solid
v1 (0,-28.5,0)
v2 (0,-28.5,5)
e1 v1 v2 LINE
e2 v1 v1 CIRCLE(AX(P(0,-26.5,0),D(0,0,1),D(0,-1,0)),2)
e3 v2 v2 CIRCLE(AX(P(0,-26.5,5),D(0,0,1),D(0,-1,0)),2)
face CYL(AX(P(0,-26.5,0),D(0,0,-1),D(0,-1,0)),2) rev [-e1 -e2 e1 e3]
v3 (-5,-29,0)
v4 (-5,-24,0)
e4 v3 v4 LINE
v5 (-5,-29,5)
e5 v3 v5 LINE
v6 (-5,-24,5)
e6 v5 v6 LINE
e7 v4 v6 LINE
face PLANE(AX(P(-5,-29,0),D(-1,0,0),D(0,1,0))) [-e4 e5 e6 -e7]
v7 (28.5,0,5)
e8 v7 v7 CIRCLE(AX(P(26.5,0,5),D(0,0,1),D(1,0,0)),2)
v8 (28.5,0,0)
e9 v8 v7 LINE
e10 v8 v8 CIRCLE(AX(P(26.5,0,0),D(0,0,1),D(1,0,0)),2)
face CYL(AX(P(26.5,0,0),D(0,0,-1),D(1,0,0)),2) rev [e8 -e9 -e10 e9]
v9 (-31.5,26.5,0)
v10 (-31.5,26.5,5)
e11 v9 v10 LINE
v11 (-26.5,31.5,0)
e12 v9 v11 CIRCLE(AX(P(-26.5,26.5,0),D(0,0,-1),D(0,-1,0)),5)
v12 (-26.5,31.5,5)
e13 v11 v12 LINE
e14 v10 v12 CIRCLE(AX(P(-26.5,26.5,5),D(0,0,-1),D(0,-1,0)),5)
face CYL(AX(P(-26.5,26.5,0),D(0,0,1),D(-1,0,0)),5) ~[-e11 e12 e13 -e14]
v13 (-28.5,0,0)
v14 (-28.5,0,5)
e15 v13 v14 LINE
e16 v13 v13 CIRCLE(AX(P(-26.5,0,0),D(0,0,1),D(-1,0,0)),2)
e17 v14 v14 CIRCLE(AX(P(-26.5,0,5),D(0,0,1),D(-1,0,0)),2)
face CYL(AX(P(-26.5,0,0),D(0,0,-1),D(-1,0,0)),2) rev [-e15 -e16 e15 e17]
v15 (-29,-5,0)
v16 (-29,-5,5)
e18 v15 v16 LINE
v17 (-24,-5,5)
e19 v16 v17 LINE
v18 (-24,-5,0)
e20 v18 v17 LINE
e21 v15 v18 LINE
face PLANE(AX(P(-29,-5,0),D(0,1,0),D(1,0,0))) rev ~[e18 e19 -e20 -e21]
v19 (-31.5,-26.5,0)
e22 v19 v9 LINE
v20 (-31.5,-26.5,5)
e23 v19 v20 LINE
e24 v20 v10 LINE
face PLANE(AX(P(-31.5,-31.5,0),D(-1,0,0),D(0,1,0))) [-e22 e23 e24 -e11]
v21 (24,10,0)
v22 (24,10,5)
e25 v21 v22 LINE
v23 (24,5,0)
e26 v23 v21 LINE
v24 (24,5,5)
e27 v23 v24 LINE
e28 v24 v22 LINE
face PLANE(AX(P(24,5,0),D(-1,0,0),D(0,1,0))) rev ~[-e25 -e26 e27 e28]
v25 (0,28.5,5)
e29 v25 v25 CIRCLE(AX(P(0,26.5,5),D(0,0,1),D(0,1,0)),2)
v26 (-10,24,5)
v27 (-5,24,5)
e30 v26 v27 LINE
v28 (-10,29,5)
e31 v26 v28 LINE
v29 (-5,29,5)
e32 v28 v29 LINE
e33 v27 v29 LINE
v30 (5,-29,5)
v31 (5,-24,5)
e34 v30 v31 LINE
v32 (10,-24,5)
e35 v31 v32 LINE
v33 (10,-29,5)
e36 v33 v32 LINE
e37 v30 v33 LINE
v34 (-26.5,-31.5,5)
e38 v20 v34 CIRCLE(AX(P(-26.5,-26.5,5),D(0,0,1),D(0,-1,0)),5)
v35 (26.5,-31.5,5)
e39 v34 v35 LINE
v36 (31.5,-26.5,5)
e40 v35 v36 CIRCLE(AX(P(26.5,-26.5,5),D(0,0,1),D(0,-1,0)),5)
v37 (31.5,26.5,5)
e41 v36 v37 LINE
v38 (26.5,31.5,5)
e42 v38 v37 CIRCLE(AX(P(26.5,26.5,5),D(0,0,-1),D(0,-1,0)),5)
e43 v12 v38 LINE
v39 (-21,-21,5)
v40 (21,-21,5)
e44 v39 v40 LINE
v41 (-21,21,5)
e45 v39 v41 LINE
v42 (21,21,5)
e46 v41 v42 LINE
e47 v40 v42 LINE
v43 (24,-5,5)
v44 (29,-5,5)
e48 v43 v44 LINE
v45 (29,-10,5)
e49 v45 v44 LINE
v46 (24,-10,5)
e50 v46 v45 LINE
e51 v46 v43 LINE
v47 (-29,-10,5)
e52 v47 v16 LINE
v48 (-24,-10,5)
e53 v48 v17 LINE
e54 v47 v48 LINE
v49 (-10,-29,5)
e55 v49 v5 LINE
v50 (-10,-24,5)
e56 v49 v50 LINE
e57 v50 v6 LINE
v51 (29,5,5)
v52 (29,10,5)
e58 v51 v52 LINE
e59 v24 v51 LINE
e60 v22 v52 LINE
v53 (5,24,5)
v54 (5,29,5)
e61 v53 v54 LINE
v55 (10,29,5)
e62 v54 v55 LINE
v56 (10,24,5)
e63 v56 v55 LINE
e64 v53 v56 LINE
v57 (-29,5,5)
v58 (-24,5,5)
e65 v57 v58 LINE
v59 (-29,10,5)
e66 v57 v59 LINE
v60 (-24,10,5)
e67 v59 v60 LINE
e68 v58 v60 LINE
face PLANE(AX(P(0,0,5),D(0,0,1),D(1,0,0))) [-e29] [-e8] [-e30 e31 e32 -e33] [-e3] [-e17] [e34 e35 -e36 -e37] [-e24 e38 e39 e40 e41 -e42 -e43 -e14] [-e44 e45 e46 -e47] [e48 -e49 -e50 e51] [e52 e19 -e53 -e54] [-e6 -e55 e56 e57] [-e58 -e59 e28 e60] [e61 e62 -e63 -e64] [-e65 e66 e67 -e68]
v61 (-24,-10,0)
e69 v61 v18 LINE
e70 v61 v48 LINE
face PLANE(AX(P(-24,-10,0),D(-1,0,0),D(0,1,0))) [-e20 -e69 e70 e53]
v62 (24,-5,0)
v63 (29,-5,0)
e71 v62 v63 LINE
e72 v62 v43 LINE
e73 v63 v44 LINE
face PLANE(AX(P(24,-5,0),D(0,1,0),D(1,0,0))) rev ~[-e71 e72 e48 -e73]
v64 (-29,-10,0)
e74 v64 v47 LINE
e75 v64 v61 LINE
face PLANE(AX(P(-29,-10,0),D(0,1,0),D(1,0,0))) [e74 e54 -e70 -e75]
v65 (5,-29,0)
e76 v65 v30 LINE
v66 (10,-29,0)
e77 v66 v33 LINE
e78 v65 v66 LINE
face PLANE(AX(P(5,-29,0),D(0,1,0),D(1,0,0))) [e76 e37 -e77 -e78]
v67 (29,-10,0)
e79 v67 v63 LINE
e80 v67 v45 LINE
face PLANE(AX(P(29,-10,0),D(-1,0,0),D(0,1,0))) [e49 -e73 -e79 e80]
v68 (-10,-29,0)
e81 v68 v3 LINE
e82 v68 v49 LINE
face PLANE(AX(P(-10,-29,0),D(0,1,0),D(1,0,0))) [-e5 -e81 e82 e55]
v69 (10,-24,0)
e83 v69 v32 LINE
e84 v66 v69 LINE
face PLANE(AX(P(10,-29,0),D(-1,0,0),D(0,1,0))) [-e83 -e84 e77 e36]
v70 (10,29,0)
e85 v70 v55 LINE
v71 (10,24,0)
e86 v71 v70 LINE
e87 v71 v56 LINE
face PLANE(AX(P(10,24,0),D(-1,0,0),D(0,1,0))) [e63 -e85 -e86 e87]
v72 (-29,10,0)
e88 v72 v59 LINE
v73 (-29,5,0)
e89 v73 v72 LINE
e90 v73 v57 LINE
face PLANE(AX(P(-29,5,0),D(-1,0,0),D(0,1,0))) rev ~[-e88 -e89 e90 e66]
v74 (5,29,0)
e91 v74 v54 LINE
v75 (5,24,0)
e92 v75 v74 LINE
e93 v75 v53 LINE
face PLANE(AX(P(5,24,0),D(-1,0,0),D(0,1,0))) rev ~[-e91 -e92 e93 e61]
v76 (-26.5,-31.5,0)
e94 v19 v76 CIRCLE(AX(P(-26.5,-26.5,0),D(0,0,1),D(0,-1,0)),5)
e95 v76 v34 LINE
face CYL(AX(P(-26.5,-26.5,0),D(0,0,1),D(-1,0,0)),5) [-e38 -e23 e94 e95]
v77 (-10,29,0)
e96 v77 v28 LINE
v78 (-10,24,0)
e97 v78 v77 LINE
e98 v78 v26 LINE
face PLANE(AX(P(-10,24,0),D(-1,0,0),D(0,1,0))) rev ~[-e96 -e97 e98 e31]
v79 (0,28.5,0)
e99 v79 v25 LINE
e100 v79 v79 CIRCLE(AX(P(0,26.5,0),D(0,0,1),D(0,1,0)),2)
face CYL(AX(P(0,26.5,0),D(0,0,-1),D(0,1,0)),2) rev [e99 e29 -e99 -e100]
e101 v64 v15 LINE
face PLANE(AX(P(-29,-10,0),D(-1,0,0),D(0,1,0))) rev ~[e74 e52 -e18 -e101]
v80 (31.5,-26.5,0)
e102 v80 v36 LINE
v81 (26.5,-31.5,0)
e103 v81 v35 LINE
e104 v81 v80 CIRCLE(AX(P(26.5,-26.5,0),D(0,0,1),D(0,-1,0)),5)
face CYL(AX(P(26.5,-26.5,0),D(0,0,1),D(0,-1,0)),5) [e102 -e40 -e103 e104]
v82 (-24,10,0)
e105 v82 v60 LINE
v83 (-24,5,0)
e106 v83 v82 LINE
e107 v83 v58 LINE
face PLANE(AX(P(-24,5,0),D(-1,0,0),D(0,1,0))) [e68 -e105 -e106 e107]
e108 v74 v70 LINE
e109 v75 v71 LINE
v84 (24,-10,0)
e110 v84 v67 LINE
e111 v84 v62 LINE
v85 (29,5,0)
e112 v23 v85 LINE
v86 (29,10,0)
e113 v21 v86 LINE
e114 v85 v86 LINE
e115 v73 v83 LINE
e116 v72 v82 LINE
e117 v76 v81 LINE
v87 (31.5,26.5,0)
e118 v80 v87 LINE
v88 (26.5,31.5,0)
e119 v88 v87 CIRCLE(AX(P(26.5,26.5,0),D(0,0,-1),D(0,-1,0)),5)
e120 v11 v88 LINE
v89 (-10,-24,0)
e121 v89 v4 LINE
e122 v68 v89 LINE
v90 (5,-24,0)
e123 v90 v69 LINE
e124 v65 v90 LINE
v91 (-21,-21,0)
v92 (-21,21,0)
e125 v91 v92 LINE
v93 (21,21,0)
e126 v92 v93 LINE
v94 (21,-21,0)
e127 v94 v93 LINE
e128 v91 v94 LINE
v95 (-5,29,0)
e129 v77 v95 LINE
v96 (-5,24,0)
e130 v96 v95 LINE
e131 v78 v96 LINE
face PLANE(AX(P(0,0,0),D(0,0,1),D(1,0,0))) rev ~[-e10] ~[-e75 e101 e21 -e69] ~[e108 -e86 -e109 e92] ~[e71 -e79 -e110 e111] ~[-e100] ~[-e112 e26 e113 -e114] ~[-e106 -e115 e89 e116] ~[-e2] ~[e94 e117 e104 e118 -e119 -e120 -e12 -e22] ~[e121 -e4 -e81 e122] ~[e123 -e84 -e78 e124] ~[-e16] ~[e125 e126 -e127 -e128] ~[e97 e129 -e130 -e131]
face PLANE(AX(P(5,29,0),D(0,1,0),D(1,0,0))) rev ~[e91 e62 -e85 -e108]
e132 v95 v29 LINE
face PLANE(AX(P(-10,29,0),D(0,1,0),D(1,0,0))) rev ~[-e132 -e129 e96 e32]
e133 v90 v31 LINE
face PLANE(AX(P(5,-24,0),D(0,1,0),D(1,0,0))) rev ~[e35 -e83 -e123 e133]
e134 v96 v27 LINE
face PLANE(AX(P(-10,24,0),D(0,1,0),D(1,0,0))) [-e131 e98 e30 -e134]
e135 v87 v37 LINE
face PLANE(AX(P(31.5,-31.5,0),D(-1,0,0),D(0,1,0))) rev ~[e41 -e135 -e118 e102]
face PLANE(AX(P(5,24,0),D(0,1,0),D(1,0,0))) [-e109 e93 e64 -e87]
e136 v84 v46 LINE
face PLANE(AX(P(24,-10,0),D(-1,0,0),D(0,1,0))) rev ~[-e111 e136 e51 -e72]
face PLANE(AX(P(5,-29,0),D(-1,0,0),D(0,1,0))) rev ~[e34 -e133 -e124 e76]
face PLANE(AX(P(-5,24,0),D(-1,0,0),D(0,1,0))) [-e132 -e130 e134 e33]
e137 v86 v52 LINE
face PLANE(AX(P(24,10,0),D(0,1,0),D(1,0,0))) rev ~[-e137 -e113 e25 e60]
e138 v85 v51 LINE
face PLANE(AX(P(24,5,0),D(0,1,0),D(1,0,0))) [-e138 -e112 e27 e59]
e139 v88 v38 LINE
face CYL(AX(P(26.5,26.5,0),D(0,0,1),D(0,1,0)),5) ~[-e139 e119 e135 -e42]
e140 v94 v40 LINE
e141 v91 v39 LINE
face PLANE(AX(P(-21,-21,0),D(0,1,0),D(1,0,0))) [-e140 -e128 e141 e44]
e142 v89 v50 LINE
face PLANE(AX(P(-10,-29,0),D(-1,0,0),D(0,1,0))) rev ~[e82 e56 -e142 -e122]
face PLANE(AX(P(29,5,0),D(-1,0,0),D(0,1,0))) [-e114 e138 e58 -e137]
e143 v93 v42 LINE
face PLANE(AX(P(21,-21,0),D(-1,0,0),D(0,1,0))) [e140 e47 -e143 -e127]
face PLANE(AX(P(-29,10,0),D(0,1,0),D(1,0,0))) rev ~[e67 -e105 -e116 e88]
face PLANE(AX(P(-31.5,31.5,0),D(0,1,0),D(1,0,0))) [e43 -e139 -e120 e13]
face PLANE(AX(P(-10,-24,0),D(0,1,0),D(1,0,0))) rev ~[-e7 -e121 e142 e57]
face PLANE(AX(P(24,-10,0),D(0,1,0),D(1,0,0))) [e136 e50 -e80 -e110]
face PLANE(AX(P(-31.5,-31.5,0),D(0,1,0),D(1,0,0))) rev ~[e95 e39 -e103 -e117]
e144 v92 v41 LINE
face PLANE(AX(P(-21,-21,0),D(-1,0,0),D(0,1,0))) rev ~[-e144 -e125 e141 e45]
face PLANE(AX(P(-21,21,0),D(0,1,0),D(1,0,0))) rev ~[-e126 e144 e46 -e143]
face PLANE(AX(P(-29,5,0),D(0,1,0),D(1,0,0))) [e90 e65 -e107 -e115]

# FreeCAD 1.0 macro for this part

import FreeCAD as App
import Part
import Sketcher
Q = App.Units.Quantity


def edges_at(feature, points):
    """Names of the edges that pass closest to the given points."""
    edges = feature.Shape.Edges
    near = lambda p: min(range(len(edges)), key=lambda i: edges[i].distToShape(Part.Vertex(*p))[0])
    return sorted({f"Edge{near(p) + 1}" for p in points})


def add_polygon(sketch, points):
    """Adds a closed chain of lines whose ends are joined by coincident constraints."""
    first, n = sketch.GeometryCount, len(points)
    for a, b in zip(points, points[1:] + points[:1]):
        sketch.addGeometry(Part.LineSegment(App.Vector(*a, 0), App.Vector(*b, 0)), False)
    for i in range(n):
        sketch.addConstraint(Sketcher.Constraint("Coincident", first + i, 2, first + (i + 1) % n, 1))

doc = App.newDocument("Part")
body = doc.addObject("PartDesign::Body", "Body")

sketch1 = doc.addObject("Sketcher::SketchObject", "Sketch")
body.addObject(sketch1)
sketch1.AttachmentSupport = (doc.XY_Plane, [""])
sketch1.MapMode = "FlatFace"
add_polygon(sketch1, [(-31.5, 31.5), (-31.5, -31.5), (31.5, -31.5), (31.5, 31.5)])
add_polygon(sketch1, [(-5, -29), (-10, -29), (-10, -24), (-5, -24)])
add_polygon(sketch1, [(-24, -10), (-29, -10), (-29, -5), (-24, -5)])
sketch1.addGeometry(Part.Circle(App.Vector(0, -26.5, 0), App.Vector(0, 0, 1), 2), False)
add_polygon(sketch1, [(10, -29), (5, -29), (5, -24), (10, -24)])
add_polygon(sketch1, [(29, -10), (24, -10), (24, -5), (29, -5)])
sketch1.addGeometry(Part.Circle(App.Vector(-26.5, 0, 0), App.Vector(0, 0, 1), 2), False)
add_polygon(sketch1, [(-24, 5), (-29, 5), (-29, 10), (-24, 10)])
add_polygon(sketch1, [(-5, 24), (-10, 24), (-10, 29), (-5, 29)])
add_polygon(sketch1, [(21, -21), (-21, -21), (-21, 21), (21, 21)])
sketch1.addGeometry(Part.Circle(App.Vector(26.5, 0, 0), App.Vector(0, 0, 1), 2), False)
add_polygon(sketch1, [(29, 5), (24, 5), (24, 10), (29, 10)])
sketch1.addGeometry(Part.Circle(App.Vector(0, 26.5, 0), App.Vector(0, 0, 1), 2), False)
add_polygon(sketch1, [(10, 24), (5, 24), (5, 29), (10, 29)])
sketch1.addConstraint([
    Sketcher.Constraint("Vertical", 0),
    Sketcher.Constraint("Horizontal", 1),
    Sketcher.Constraint("Vertical", 2),
    Sketcher.Constraint("Horizontal", 3),
    Sketcher.Constraint("Horizontal", 4),
    Sketcher.Constraint("Vertical", 5),
    Sketcher.Constraint("Horizontal", 6),
    Sketcher.Constraint("Vertical", 7),
    Sketcher.Constraint("Horizontal", 8),
    Sketcher.Constraint("Vertical", 9),
    Sketcher.Constraint("Horizontal", 10),
    Sketcher.Constraint("Vertical", 11),
    Sketcher.Constraint("Horizontal", 13),
    Sketcher.Constraint("Vertical", 14),
    Sketcher.Constraint("Horizontal", 15),
    Sketcher.Constraint("Vertical", 16),
    Sketcher.Constraint("Horizontal", 17),
    Sketcher.Constraint("Vertical", 18),
    Sketcher.Constraint("Horizontal", 19),
    Sketcher.Constraint("Vertical", 20),
    Sketcher.Constraint("Horizontal", 22),
    Sketcher.Constraint("Vertical", 23),
    Sketcher.Constraint("Horizontal", 24),
    Sketcher.Constraint("Vertical", 25),
    Sketcher.Constraint("Horizontal", 26),
    Sketcher.Constraint("Vertical", 27),
    Sketcher.Constraint("Horizontal", 28),
    Sketcher.Constraint("Vertical", 29),
    Sketcher.Constraint("Horizontal", 30),
    Sketcher.Constraint("Vertical", 31),
    Sketcher.Constraint("Horizontal", 32),
    Sketcher.Constraint("Vertical", 33),
    Sketcher.Constraint("Horizontal", 35),
    Sketcher.Constraint("Vertical", 36),
    Sketcher.Constraint("Horizontal", 37),
    Sketcher.Constraint("Vertical", 38),
    Sketcher.Constraint("Horizontal", 40),
    Sketcher.Constraint("Vertical", 41),
    Sketcher.Constraint("Horizontal", 42),
    Sketcher.Constraint("Vertical", 43),
    Sketcher.Constraint("Equal", 12, 21),
    Sketcher.Constraint("Equal", 21, 34),
    Sketcher.Constraint("Equal", 34, 39),
    Sketcher.Constraint("Symmetric", 21, 3, 34, 3, -1, 1),
    Sketcher.Constraint("Symmetric", 12, 3, 39, 3, -1, 1),
    Sketcher.Constraint("Symmetric", 0, 2, 2, 2, -1, 1),
    Sketcher.Constraint("Symmetric", 19, 2, 22, 2, -1, 1),
    Sketcher.Constraint("Symmetric", 17, 2, 24, 2, -1, 1),
    Sketcher.Constraint("Symmetric", 15, 2, 26, 2, -1, 1),
    Sketcher.Constraint("Symmetric", 13, 2, 28, 2, -1, 1),
    Sketcher.Constraint("Symmetric", 30, 2, 32, 2, -1, 1),
    Sketcher.Constraint("Symmetric", 10, 2, 35, 2, -1, 1),
    Sketcher.Constraint("Symmetric", 8, 2, 37, 2, -1, 1),
    Sketcher.Constraint("Symmetric", 6, 2, 40, 2, -1, 1),
    Sketcher.Constraint("Symmetric", 4, 2, 42, 2, -1, 1),
    Sketcher.Constraint("Symmetric", 7, 2, 13, 2, -2),
    Sketcher.Constraint("Symmetric", 5, 2, 15, 2, -2),
    Sketcher.Constraint("Symmetric", 11, 2, 17, 2, -2),
    Sketcher.Constraint("Symmetric", 9, 2, 19, 2, -2),
    Sketcher.Constraint("PointOnObject", 12, 3, -2),
    Sketcher.Constraint("PointOnObject", 21, 3, -1),
    Sketcher.Constraint("Equal", 6, 8),
    Sketcher.Constraint("Equal", 3, 0),
    Sketcher.Constraint("Equal", 42, 5),
    Sketcher.Constraint("Equal", 7, 9),
    Sketcher.Constraint("Equal", 32, 31),
    Sketcher.Constraint("Diameter", 12, Q("4 mm")),
    Sketcher.Constraint("DistanceX", 1, 1, 1, 2, Q("63 mm")),
    Sketcher.Constraint("DistanceX", 4, 2, 4, 1, Q("5 mm")),
    Sketcher.Constraint("DistanceX", 30, 2, 30, 1, Q("42 mm")),
    Sketcher.Constraint("DistanceX", 4, 2, -1, 1, Q("10 mm")),
    Sketcher.Constraint("DistanceY", 4, 2, -1, 1, Q("29 mm")),
    Sketcher.Constraint("DistanceX", 8, 2, -1, 1, Q("29 mm")),
    Sketcher.Constraint("DistanceY", 8, 2, -1, 1, Q("10 mm")),
    Sketcher.Constraint("DistanceX", 21, 3, 34, 3, Q("53 mm")),
    Sketcher.Constraint("DistanceY", 12, 3, 39, 3, Q("53 mm")),
])
pad1 = doc.addObject("PartDesign::Pad", "Pad")
body.addObject(pad1)
pad1.Profile = sketch1
pad1.Length = 5
doc.recompute()

fillet = doc.addObject("PartDesign::Fillet", "Fillet")
body.addObject(fillet)
fillet.Base = (pad1, edges_at(pad1, [
    (-31.5, 31.5, 2.5),
    (31.5, 31.5, 2.5),
    (31.5, -31.5, 2.5),
    (-31.5, -31.5, 2.5),
]))
fillet.Radius = 5

doc.recompute()
